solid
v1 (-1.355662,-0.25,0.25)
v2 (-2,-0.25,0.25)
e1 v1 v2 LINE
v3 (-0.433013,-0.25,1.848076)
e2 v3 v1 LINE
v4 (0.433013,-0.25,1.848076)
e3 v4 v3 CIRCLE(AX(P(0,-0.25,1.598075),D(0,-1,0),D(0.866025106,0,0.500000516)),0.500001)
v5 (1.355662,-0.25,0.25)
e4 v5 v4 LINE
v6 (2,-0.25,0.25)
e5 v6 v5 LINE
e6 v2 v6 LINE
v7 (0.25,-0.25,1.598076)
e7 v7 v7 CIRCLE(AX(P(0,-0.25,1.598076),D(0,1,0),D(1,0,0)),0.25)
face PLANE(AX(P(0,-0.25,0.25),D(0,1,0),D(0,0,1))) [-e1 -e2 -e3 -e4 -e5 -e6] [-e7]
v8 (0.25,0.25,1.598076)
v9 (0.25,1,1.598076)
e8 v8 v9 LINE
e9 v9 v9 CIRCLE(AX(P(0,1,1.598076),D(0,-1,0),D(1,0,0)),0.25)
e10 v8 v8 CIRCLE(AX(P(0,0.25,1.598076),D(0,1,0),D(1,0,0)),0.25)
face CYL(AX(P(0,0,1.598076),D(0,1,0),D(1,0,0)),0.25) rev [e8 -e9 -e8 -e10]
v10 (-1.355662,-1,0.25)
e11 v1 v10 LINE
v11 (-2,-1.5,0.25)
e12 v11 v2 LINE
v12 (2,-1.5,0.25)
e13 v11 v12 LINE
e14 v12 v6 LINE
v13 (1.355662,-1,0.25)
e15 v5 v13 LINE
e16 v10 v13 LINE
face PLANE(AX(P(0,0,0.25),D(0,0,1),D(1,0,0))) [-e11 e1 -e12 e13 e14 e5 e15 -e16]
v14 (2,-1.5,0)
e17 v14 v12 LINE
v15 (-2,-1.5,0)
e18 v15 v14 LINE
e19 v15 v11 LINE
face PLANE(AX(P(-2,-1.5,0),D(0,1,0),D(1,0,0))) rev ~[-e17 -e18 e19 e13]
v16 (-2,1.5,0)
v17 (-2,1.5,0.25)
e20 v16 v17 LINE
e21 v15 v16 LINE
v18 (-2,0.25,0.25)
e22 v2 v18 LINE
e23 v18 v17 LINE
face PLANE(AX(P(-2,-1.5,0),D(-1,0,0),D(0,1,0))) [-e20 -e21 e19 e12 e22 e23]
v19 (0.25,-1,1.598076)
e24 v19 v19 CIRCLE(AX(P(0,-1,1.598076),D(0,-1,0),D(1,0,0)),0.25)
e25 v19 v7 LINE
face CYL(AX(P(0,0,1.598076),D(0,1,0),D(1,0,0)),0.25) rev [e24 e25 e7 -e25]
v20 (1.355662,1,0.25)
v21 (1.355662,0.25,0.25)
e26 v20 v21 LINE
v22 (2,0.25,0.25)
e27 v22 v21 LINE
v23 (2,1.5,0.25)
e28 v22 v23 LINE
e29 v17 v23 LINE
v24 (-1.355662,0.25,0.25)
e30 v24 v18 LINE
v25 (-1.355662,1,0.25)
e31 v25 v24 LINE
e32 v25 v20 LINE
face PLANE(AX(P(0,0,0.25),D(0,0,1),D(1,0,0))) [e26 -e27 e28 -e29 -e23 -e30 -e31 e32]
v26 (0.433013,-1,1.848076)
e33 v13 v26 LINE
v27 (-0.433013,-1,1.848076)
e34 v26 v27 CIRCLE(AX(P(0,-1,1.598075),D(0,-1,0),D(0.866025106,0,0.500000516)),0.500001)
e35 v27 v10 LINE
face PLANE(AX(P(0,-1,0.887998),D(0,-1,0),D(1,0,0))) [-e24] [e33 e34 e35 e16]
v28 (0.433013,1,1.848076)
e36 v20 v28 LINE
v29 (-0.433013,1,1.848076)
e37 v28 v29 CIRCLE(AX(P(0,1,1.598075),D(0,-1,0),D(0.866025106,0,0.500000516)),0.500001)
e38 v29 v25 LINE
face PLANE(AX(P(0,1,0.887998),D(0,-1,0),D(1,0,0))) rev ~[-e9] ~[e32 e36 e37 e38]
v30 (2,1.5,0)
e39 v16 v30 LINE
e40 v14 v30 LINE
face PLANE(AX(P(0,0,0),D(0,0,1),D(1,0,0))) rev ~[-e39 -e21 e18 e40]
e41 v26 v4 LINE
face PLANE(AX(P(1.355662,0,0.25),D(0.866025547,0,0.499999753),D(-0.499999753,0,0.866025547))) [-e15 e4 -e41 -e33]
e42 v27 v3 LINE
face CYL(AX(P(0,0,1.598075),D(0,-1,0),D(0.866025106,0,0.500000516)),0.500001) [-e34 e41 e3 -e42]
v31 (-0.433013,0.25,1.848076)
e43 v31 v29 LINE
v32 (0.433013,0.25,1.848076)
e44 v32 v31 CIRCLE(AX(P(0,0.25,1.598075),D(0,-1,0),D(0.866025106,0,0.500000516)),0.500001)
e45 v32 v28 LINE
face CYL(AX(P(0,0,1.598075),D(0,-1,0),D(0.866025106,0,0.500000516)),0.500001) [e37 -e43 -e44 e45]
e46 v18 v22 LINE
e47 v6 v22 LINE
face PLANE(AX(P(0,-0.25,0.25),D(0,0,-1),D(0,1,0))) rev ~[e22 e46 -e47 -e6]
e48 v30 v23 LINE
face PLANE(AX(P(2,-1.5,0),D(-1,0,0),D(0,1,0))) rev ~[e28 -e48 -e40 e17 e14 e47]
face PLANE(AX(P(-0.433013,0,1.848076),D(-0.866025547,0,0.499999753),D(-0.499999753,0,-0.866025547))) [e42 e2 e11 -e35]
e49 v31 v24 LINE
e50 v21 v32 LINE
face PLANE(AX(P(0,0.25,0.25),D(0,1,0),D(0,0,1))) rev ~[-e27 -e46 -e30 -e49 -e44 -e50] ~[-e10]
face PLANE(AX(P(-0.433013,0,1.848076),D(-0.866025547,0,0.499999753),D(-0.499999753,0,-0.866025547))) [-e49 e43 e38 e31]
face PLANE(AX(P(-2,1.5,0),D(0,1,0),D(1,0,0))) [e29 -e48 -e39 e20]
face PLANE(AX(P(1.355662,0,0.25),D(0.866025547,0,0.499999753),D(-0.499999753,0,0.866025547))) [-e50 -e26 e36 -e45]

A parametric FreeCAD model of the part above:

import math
import FreeCAD as App
import Part
import Sketcher
from FreeCAD import Vector
Q = App.Units.Quantity


def add_polygon(sketch, points):
    """Adds a closed chain of lines whose ends are joined by coincident constraints."""
    first, n = sketch.GeometryCount, len(points)
    for a, b in zip(points, points[1:] + points[:1]):
        sketch.addGeometry(Part.LineSegment(App.Vector(*a, 0), App.Vector(*b, 0)), False)
    for i in range(n):
        sketch.addConstraint(Sketcher.Constraint("Coincident", first + i, 2, first + (i + 1) % n, 1))

doc = App.newDocument("Part")
body = doc.addObject("PartDesign::Body", "Body")

# Sketch on XY plane
sketch1 = body.newObject("Sketcher::SketchObject", "Sketch")
sketch1.AttachmentSupport = (doc.getObject("XY_Plane"), [""])
sketch1.MapMode = "FlatFace"
add_polygon(sketch1, [(-2, 1.5), (-2, -1.5), (2, -1.5), (2, 1.5)])  # lines 0-3
sketch1.addConstraint([
    Sketcher.Constraint("Vertical", 0),
    Sketcher.Constraint("Horizontal", 1),
    Sketcher.Constraint("Vertical", 2),
    Sketcher.Constraint("Horizontal", 3),
    Sketcher.Constraint("Symmetric", 0, 2, 2, 2, -1, 1),
    Sketcher.Constraint("DistanceX", 1, 1, 1, 2, Q("4 mm")),
    Sketcher.Constraint("DistanceY", 0, 2, 0, 1, Q("3 mm")),
])
pad1 = body.newObject("PartDesign::Pad", "Pad")
pad1.Profile = sketch1
pad1.Length = 0.25

# Sketch on XZ plane
sketch2 = body.newObject("Sketcher::SketchObject", "Sketch001")
sketch2.AttachmentSupport = (doc.getObject("XZ_Plane"), [""])
sketch2.MapMode = "FlatFace"
sketch2.addGeometry([
    Part.LineSegment(Vector(-0.433013, 1.848076, 0), Vector(-1.355662, 0.25, 0)),  # 0
    Part.LineSegment(Vector(-1.355662, 0.25, 0), Vector(1.355662, 0.25, 0)),  # 1
    Part.LineSegment(Vector(1.355662, 0.25, 0), Vector(0.433013, 1.848076, 0)),  # 2
    Part.ArcOfCircle(Part.Circle(Vector(0, 1.598075, 0), Vector(0, 0, 1), 0.500001), math.radians(30.000034), math.radians(149.999966)),  # 3
    Part.Circle(Vector(0, 1.598076, 0), Vector(0, 0, 1), 0.25),  # 4
], False)
sketch2.addConstraint([
    Sketcher.Constraint("Coincident", 0, 2, 1, 1),
    Sketcher.Constraint("Coincident", 1, 2, 2, 1),
    Sketcher.Constraint("Tangent", 2, 2, 3, 1),
    Sketcher.Constraint("Tangent", 3, 2, 0, 1),
    Sketcher.Constraint("Horizontal", 1),
    Sketcher.Constraint("Coincident", 4, 3, 3, 3),
    Sketcher.Constraint("Symmetric", 2, 2, 3, 2, -2),
    Sketcher.Constraint("Diameter", 4, Q("0.5 mm")),
    Sketcher.Constraint("Radius", 3, Q("0.500001 mm")),
    Sketcher.Constraint("Angle", 0, Q("-119.999984 deg")),
    Sketcher.Constraint("DistanceY", -1, 1, 0, 2, Q("0.25 mm")),
    Sketcher.Constraint("Distance", 0, Q("1.845299 mm")),
])
pad2 = body.newObject("PartDesign::Pad", "Pad001")
pad2.Profile = sketch2
pad2.Length = 2
pad2.Midplane = True

# Sketch on YZ plane
sketch3 = body.newObject("Sketcher::SketchObject", "Sketch002")
sketch3.AttachmentSupport = (doc.getObject("YZ_Plane"), [""])
sketch3.MapMode = "FlatFace"
add_polygon(sketch3, [(-0.25, 4.397441), (-0.25, 0.25), (0.25, 0.25), (0.25, 4.397441)])  # lines 0-3
sketch3.addConstraint([
    Sketcher.Constraint("Vertical", 0),
    Sketcher.Constraint("Horizontal", 1),
    Sketcher.Constraint("Vertical", 2),
    Sketcher.Constraint("Horizontal", 3),
    Sketcher.Constraint("DistanceX", 1, 1, 1, 2, Q("0.5 mm")),
    Sketcher.Constraint("DistanceX", 0, 2, -1, 1, Q("0.25 mm")),
    Sketcher.Constraint("DistanceY", -1, 1, 0, 2, Q("0.25 mm")),
    Sketcher.Constraint("DistanceY", 0, 2, 0, 1, Q("4.147441 mm")),
])
pocket1 = body.newObject("PartDesign::Pocket", "Pocket")
pocket1.Profile = sketch3
pocket1.Length = 25
pocket1.Midplane = True

doc.recompute()
